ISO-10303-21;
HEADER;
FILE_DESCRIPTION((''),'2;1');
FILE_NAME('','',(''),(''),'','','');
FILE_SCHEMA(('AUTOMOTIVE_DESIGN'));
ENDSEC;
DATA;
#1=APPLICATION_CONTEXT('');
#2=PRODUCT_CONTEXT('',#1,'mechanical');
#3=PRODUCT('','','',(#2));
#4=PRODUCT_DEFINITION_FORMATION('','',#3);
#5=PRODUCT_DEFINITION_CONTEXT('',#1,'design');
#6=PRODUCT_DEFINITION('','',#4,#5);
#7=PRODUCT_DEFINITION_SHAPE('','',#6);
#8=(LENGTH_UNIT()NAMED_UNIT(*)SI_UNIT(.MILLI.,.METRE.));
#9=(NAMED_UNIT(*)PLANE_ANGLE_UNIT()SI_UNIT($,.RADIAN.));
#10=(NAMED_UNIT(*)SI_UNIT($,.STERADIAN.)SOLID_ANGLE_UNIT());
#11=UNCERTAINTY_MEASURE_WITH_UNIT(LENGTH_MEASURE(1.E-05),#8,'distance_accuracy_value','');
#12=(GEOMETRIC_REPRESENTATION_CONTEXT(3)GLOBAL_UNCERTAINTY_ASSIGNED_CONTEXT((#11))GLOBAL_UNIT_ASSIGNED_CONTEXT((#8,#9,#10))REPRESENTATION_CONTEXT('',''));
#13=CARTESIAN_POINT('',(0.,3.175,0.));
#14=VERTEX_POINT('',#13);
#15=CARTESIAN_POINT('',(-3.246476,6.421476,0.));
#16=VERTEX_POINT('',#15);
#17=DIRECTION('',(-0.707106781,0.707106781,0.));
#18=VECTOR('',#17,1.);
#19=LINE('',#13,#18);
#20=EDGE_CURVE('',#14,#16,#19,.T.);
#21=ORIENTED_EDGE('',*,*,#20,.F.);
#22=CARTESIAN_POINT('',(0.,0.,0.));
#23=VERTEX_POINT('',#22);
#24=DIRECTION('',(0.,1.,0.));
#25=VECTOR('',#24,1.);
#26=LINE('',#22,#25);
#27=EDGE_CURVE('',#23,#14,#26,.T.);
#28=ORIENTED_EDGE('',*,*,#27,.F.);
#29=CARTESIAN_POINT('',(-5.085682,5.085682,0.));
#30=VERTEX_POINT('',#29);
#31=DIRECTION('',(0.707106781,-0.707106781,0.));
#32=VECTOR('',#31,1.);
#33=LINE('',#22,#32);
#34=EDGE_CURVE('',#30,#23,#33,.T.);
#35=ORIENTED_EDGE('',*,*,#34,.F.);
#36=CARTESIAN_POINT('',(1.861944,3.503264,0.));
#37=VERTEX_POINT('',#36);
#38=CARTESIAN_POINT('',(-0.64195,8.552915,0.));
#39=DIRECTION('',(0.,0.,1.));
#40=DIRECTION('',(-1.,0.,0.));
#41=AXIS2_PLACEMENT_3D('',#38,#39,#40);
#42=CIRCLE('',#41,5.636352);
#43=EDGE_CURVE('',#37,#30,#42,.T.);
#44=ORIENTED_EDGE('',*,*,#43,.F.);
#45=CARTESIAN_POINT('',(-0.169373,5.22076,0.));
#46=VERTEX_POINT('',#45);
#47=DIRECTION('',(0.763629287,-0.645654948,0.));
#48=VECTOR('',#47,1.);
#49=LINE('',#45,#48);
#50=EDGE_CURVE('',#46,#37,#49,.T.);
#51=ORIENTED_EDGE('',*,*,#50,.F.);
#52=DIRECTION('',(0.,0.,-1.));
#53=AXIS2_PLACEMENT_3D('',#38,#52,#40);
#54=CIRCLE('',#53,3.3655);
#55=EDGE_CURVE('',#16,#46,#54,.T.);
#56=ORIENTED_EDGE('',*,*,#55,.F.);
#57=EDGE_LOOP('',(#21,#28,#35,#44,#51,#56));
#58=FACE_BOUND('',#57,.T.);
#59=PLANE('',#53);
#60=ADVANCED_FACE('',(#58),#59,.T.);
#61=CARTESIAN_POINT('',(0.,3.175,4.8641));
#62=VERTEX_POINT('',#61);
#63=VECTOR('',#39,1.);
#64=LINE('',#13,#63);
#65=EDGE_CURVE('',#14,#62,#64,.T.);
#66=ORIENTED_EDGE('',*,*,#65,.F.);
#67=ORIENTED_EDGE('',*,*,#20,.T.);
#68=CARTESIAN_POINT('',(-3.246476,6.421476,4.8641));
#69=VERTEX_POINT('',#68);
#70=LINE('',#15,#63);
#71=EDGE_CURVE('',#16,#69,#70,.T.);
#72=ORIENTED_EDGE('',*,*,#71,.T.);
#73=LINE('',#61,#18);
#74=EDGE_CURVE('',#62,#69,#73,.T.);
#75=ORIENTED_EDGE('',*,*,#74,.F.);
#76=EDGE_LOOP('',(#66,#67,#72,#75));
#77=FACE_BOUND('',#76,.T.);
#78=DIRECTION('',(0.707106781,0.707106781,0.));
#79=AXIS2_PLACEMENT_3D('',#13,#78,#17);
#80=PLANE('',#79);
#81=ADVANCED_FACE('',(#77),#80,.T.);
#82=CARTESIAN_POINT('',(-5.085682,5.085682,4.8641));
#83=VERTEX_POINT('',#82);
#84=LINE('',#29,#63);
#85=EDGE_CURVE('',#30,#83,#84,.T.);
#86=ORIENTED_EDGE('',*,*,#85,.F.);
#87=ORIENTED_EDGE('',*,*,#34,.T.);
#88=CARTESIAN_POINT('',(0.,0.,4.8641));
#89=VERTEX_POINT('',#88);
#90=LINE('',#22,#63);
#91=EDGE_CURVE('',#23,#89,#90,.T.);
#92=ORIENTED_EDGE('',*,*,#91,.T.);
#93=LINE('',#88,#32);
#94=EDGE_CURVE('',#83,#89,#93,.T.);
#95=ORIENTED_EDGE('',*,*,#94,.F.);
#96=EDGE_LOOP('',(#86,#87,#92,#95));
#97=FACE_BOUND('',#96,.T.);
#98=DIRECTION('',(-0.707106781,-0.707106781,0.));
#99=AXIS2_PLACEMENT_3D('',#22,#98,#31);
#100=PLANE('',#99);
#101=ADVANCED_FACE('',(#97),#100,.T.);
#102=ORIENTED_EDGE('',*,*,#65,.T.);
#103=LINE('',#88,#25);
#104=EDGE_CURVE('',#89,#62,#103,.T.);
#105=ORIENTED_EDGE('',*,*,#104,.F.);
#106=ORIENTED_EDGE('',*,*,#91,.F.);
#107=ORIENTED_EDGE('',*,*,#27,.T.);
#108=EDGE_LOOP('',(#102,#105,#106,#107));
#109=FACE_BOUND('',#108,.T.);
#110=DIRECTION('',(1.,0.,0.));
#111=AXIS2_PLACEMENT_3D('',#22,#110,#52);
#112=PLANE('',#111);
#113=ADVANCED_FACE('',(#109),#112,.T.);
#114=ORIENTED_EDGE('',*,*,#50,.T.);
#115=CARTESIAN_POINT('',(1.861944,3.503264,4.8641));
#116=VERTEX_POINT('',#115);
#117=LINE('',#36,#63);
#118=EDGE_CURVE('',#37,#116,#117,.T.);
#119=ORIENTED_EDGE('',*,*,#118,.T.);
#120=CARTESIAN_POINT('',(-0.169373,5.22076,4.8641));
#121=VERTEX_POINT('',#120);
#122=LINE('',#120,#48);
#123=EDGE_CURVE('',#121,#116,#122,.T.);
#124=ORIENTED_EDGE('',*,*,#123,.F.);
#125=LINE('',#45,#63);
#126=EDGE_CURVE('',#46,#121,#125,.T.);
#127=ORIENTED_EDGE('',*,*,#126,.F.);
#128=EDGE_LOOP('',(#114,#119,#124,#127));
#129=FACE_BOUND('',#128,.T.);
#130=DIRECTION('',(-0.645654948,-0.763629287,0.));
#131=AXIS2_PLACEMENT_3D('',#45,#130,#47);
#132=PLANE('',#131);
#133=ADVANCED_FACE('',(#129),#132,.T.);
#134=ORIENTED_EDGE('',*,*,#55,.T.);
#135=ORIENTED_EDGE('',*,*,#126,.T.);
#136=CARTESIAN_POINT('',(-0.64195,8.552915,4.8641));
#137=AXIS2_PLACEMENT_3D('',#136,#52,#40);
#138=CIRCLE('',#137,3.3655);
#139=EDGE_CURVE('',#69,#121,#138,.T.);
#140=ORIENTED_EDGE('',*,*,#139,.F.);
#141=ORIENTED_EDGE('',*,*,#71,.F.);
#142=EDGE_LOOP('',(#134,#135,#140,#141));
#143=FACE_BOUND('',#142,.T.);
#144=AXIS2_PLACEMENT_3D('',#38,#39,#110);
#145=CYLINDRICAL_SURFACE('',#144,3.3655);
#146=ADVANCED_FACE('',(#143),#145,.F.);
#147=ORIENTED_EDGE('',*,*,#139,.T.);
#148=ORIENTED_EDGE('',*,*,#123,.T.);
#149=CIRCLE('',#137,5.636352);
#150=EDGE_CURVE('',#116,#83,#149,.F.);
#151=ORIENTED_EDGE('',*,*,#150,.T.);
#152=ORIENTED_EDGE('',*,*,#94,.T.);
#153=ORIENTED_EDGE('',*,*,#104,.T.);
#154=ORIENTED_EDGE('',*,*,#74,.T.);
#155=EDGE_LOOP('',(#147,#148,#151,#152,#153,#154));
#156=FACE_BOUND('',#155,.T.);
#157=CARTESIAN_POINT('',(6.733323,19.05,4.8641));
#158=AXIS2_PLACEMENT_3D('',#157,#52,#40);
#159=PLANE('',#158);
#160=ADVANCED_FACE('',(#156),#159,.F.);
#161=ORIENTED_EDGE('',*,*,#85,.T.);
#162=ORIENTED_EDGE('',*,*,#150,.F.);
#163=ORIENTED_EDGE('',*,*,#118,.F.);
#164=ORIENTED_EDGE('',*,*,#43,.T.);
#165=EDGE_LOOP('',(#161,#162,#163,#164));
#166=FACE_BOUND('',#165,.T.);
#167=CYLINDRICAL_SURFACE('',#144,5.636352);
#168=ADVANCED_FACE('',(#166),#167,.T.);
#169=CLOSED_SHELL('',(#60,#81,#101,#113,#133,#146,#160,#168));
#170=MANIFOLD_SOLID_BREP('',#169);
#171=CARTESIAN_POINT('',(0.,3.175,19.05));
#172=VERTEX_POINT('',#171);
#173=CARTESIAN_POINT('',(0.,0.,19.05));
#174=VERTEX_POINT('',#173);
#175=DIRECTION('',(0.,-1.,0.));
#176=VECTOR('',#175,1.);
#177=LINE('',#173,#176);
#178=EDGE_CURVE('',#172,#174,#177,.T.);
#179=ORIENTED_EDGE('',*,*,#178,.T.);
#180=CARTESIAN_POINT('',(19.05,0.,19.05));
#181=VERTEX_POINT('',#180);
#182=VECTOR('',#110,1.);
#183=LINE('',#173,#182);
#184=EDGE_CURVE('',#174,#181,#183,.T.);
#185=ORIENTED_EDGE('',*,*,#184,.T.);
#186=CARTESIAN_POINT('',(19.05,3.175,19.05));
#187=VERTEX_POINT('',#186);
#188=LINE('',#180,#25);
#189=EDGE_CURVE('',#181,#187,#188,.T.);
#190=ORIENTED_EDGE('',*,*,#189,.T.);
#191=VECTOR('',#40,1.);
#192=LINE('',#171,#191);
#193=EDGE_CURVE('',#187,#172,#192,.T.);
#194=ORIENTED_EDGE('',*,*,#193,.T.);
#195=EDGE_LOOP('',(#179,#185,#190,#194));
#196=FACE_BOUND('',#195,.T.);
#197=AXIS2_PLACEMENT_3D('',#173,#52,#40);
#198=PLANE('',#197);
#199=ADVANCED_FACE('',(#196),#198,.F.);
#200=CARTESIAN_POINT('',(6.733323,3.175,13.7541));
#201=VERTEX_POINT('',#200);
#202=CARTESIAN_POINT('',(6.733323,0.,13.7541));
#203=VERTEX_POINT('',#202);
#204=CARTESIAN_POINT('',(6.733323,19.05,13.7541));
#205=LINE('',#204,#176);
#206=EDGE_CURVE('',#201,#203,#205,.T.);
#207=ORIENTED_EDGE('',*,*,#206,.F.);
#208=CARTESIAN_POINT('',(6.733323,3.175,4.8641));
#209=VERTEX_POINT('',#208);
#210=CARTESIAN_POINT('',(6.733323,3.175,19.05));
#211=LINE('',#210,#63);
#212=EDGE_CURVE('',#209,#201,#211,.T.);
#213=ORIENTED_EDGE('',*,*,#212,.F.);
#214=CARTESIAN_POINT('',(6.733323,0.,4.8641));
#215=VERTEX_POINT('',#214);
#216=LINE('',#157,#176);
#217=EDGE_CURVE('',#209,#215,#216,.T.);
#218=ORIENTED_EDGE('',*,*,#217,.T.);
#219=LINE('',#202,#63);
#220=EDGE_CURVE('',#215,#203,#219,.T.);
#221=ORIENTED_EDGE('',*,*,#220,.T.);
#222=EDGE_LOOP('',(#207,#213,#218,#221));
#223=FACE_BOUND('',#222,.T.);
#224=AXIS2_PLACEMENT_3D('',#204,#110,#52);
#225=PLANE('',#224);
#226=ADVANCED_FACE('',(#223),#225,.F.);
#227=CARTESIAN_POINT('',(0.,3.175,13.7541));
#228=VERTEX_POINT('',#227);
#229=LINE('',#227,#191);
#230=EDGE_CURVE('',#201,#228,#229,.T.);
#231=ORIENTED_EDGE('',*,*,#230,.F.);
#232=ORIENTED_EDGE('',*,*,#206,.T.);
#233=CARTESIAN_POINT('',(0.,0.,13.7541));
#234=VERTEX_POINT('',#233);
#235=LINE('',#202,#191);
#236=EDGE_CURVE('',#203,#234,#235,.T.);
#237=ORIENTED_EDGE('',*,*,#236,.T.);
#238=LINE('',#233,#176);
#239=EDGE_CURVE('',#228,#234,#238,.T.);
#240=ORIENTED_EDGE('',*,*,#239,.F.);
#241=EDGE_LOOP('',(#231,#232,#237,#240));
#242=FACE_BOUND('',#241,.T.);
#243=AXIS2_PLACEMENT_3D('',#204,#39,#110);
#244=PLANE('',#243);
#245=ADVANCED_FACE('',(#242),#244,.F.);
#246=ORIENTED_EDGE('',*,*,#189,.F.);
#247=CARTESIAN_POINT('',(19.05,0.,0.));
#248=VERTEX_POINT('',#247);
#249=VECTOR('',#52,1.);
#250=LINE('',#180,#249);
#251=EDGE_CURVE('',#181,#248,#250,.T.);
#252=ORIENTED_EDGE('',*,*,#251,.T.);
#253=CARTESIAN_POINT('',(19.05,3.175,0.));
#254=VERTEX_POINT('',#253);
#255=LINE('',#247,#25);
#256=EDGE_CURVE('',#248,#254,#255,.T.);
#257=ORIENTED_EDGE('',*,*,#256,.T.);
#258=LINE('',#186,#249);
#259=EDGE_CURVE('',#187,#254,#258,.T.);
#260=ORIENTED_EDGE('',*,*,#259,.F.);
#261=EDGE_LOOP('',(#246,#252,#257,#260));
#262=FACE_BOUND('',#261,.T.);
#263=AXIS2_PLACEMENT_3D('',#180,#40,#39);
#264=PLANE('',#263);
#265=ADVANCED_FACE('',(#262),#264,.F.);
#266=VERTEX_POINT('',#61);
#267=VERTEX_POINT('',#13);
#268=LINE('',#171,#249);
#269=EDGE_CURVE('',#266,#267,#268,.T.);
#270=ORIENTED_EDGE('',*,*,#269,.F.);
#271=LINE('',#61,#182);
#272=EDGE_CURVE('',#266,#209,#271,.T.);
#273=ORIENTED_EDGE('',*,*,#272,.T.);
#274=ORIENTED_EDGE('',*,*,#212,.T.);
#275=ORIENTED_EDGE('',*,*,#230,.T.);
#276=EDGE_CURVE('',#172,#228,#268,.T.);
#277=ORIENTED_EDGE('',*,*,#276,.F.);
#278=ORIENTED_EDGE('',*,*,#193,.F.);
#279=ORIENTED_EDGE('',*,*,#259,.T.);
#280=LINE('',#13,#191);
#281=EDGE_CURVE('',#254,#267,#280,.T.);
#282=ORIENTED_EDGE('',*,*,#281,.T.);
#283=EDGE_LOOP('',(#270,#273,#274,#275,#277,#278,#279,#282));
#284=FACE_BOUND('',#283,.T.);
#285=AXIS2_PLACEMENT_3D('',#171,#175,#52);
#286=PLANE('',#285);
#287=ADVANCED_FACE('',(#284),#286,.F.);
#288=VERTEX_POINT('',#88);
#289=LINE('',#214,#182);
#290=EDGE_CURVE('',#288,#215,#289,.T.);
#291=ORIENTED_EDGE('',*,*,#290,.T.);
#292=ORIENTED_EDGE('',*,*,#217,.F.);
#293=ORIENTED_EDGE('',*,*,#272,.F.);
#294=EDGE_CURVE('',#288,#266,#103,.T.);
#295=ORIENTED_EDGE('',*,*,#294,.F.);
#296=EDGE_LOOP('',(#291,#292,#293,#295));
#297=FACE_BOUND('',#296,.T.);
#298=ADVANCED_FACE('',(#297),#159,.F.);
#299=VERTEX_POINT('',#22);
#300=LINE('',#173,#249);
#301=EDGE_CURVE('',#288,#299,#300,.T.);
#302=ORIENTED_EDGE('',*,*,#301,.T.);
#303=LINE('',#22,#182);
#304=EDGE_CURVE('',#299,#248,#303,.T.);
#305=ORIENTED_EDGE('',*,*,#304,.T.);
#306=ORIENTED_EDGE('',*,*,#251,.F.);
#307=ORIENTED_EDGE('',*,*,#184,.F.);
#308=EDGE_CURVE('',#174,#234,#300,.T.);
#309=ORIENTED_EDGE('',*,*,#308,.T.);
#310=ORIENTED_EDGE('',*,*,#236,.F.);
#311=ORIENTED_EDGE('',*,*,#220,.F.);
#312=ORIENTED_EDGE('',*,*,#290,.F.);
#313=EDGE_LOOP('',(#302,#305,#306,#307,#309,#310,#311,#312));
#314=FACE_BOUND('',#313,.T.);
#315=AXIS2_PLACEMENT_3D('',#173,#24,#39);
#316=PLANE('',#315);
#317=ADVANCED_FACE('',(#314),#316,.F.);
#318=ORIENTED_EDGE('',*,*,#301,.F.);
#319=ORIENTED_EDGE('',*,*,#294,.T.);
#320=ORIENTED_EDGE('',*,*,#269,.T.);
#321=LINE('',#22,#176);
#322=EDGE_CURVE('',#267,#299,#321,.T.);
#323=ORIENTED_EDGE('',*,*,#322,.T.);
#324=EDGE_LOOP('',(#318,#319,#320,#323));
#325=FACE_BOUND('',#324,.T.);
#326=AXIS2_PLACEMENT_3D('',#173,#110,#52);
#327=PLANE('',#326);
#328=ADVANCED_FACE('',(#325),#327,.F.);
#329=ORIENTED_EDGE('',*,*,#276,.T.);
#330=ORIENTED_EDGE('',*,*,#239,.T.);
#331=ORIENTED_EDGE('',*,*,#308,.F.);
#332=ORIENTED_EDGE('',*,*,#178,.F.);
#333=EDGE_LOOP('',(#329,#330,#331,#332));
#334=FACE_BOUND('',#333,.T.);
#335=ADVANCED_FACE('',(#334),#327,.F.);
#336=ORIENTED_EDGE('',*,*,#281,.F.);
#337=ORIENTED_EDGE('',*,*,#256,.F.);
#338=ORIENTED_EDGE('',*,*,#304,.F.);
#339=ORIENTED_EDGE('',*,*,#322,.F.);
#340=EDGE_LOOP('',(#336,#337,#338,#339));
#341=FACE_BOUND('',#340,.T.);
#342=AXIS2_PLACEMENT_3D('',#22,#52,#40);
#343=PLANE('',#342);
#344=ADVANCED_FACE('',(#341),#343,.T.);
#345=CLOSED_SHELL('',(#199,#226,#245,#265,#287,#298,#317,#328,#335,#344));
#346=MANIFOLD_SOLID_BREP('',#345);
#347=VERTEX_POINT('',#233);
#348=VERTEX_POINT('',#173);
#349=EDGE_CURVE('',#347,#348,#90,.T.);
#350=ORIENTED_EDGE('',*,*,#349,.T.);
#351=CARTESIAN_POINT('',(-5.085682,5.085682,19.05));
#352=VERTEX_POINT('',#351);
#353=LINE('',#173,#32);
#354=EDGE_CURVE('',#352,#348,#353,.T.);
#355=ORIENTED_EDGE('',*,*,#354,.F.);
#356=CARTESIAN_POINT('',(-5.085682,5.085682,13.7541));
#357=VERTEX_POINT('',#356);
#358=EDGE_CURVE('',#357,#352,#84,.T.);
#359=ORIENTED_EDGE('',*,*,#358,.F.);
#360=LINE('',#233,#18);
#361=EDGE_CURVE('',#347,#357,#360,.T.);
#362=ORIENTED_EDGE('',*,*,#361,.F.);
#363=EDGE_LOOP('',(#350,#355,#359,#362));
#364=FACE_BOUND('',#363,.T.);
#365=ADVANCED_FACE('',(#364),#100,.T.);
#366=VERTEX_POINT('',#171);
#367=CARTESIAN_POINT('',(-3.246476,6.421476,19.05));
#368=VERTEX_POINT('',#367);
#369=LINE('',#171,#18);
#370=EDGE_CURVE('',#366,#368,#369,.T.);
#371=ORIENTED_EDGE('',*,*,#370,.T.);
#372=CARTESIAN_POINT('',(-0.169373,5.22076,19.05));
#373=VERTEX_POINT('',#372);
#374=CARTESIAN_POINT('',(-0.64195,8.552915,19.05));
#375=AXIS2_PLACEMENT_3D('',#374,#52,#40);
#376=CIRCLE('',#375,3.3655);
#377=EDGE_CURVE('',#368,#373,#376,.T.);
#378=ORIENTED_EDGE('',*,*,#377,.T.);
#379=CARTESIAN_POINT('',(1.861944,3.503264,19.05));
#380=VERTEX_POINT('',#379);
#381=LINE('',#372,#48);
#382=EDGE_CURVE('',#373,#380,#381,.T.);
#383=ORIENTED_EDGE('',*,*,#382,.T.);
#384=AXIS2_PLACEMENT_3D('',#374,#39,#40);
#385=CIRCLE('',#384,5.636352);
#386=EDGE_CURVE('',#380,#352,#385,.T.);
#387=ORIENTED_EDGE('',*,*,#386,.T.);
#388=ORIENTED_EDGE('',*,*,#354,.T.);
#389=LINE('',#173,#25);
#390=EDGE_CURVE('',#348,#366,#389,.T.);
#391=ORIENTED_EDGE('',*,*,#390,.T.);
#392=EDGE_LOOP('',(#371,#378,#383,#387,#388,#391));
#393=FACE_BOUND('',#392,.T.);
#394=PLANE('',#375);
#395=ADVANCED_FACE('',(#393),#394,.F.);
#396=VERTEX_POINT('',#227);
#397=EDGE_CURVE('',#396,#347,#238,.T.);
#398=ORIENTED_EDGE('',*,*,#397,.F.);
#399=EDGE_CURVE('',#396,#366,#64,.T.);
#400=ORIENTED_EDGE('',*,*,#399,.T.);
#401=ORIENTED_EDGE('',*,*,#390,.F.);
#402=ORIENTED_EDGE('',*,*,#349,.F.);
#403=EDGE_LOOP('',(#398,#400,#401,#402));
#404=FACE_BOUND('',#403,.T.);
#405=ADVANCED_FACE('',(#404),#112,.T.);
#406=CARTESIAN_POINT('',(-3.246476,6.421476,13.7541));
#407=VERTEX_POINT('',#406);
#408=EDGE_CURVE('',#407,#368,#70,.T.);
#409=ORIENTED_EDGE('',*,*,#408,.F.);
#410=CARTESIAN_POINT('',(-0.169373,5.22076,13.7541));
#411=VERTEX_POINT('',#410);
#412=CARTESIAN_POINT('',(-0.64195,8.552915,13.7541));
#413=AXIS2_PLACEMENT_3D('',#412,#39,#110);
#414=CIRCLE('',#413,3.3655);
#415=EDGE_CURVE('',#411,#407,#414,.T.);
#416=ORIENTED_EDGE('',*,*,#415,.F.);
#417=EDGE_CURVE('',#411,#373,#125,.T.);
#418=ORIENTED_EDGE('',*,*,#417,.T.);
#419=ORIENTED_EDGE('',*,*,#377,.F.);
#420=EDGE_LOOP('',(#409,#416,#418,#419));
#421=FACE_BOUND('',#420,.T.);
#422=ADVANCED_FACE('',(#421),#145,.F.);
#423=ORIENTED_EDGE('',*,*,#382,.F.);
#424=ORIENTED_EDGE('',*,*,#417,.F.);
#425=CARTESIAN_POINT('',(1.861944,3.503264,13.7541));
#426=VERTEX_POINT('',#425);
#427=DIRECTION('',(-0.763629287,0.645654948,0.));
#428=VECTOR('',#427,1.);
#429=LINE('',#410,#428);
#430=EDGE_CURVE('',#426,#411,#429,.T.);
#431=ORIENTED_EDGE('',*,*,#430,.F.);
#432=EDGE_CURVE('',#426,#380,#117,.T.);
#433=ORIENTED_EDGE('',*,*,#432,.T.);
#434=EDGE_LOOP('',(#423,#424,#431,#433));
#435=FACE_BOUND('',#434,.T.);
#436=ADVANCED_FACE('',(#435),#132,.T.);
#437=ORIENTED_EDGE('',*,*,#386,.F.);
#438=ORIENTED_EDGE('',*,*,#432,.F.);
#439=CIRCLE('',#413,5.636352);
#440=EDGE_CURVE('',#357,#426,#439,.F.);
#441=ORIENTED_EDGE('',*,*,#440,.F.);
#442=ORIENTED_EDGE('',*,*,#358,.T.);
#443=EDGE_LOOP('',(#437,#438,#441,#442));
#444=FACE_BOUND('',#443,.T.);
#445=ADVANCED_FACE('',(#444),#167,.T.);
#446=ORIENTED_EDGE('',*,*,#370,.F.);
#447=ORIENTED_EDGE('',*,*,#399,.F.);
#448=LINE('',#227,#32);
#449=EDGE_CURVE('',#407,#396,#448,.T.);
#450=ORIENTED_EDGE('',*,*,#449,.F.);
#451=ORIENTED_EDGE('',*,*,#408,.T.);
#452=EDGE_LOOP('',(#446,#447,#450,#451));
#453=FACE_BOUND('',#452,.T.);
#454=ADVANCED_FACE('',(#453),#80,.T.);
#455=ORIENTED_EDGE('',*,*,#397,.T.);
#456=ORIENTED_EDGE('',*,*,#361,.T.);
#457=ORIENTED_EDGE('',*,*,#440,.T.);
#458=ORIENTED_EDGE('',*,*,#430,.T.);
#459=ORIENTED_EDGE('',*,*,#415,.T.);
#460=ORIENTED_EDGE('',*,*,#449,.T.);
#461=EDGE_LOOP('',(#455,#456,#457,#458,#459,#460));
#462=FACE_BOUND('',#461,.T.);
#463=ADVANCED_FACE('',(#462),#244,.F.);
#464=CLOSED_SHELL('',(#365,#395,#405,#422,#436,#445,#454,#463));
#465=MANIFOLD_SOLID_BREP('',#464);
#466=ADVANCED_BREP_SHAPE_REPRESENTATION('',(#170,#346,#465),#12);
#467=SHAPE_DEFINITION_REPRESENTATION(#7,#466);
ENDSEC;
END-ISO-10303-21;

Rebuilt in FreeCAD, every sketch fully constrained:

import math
import FreeCAD as App
import Part
import Sketcher

V = App.Vector
Q = App.Units.Quantity


def add_polygon(sketch, points):
    """Adds a closed chain of lines whose ends are joined by coincident constraints."""
    first, n = sketch.GeometryCount, len(points)
    for a, b in zip(points, points[1:] + points[:1]):
        sketch.addGeometry(Part.LineSegment(App.Vector(*a, 0), App.Vector(*b, 0)), False)
    for i in range(n):
        sketch.addConstraint(Sketcher.Constraint("Coincident", first + i, 2, first + (i + 1) % n, 1))

doc = App.newDocument("Part")
body = doc.addObject("PartDesign::Body", "Body")

# Sketch on XY plane
sketch1 = doc.addObject("Sketcher::SketchObject", "Sketch")
body.addObject(sketch1)
sketch1.AttachmentSupport = (doc.XY_Plane, [""])
sketch1.MapMode = "FlatFace"
add_polygon(sketch1, [(0, 3.2), (0, 0), (19.1, 0), (19.1, 3.2)])  # lines 0-3
sketch1.addConstraint([
    Sketcher.Constraint("Vertical", 0),
    Sketcher.Constraint("Horizontal", 1),
    Sketcher.Constraint("Vertical", 2),
    Sketcher.Constraint("Horizontal", 3),
    Sketcher.Constraint("Coincident", 0, 2, -1, 1),
    Sketcher.Constraint("DistanceX", 1, 1, 1, 2, Q("0.75 in")),
    Sketcher.Constraint("DistanceY", 0, 2, 0, 1, Q("0.125 in")),
])
pad1 = doc.addObject("PartDesign::Pad", "Pad")
body.addObject(pad1)
pad1.Profile = sketch1
pad1.Length = Q("0.75 in")
body2 = doc.addObject("PartDesign::Body", "Body001")

# Sketch on XY plane
sketch2 = doc.addObject("Sketcher::SketchObject", "Sketch001")
body2.addObject(sketch2)
sketch2.AttachmentSupport = (doc.getObject("XY_Plane001"), [""])
sketch2.MapMode = "FlatFace"
sketch2.AttachmentOffset = App.Placement(V(0, 0, 0.75 * 25.4), App.Rotation())
sketch2.addGeometry([
    Part.LineSegment(V(0, 3.175, 0), V(-3.246476, 6.421476, 0)),  # 0
    Part.ArcOfCircle(Part.Circle(V(-0.64195, 8.552915, 0), V(0, 0, 1), 3.3655), math.radians(-81.927966), math.radians(219.295519)),  # 1
    Part.LineSegment(V(-0.169373, 5.22076, 0), V(1.861944, 3.503264, 0)),  # 2
    Part.ArcOfCircle(Part.Circle(V(-0.64195, 8.552915, 0), V(0, 0, 1), 5.636352), math.radians(-63.625265), math.radians(217.963227)),  # 3
    Part.LineSegment(V(-5.085682, 5.085682, 0), V(0, 0, 0)),  # 4
    Part.LineSegment(V(0, 0, 0), V(0, 3.175, 0)),  # 5
], False)
sketch2.addConstraint([
    Sketcher.Constraint("Coincident", 0, 2, 1, 2),
    Sketcher.Constraint("Coincident", 1, 1, 2, 1),
    Sketcher.Constraint("Coincident", 2, 2, 3, 1),
    Sketcher.Constraint("Coincident", 3, 2, 4, 1),
    Sketcher.Constraint("Coincident", 4, 2, 5, 1),
    Sketcher.Constraint("Coincident", 5, 2, 0, 1),
    Sketcher.Constraint("Vertical", 5),
    Sketcher.Constraint("Coincident", 4, 2, -1, 1),
    Sketcher.Constraint("Coincident", 3, 3, 1, 3),
    Sketcher.Constraint("Radius", 1, Q("0.1325 in")),
    Sketcher.Constraint("DistanceY", 5, 1, 5, 2, Q("0.125 in")),
    Sketcher.Constraint("Radius", 3, 5.636352),
    Sketcher.Constraint("DistanceY", 2, 2, 3, 2, Q("0.0622999 in")),
    Sketcher.Constraint("Distance", 0, 4.59121),
    Sketcher.Constraint("Distance", 4, 7.19224),
    Sketcher.Constraint("DistanceX", 1, 3, -1, 1, 0.64195),
    Sketcher.Constraint("DistanceY", -1, 1, 1, 1, 5.22076),
    Sketcher.Constraint("DistanceX", 3, 2, -1, 1, 5.085682),
])
pad2 = doc.addObject("PartDesign::Pad", "Pad001")
body2.addObject(pad2)
pad2.Profile = sketch2
pad2.Length = Q("0.75 in")
pad2.Reversed = True
body3 = doc.addObject("PartDesign::Body", "Body002")

# Sketch on XZ plane
sketch3 = doc.addObject("Sketcher::SketchObject", "Sketch002")
body3.addObject(sketch3)
sketch3.AttachmentSupport = (doc.getObject("XZ_Plane002"), [""])
sketch3.MapMode = "FlatFace"
add_polygon(sketch3, [(-8, 14), (-8, 5), (7, 5), (7, 14)])  # lines 0-3
sketch3.addConstraint([
    Sketcher.Constraint("Vertical", 0),
    Sketcher.Constraint("Horizontal", 1),
    Sketcher.Constraint("Vertical", 2),
    Sketcher.Constraint("Horizontal", 3),
    Sketcher.Constraint("DistanceY", 0, 2, 0, 1, Q("0.35 in")),
    Sketcher.Constraint("DistanceY", -1, 1, 0, 2, Q("0.1915 in")),
    Sketcher.Constraint("DistanceX", 1, 1, 1, 2, 14.499117),
    Sketcher.Constraint("DistanceX", 0, 2, -1, 1, 7.765794),
])
pad3 = doc.addObject("PartDesign::Pad", "Pad002")
body3.addObject(pad3)
pad3.Profile = sketch3
pad3.Length = Q("0.75 in")
pad3.Reversed = True
doc.recompute()

body4 = doc.addObject("PartDesign::Body", "Body003")
body4.BaseFeature = body3
boolean = doc.addObject("PartDesign::Boolean", "Boolean")
body.addObject(boolean)
boolean.Type = "Cut"
boolean.addObjects([body4])
doc.recompute()
body2.AllowCompound = True
doc.recompute()

boolean2 = doc.addObject("PartDesign::Boolean", "Boolean001")
body2.addObject(boolean2)
boolean2.Type = "Cut"
boolean2.addObjects([body3])

doc.recompute()
